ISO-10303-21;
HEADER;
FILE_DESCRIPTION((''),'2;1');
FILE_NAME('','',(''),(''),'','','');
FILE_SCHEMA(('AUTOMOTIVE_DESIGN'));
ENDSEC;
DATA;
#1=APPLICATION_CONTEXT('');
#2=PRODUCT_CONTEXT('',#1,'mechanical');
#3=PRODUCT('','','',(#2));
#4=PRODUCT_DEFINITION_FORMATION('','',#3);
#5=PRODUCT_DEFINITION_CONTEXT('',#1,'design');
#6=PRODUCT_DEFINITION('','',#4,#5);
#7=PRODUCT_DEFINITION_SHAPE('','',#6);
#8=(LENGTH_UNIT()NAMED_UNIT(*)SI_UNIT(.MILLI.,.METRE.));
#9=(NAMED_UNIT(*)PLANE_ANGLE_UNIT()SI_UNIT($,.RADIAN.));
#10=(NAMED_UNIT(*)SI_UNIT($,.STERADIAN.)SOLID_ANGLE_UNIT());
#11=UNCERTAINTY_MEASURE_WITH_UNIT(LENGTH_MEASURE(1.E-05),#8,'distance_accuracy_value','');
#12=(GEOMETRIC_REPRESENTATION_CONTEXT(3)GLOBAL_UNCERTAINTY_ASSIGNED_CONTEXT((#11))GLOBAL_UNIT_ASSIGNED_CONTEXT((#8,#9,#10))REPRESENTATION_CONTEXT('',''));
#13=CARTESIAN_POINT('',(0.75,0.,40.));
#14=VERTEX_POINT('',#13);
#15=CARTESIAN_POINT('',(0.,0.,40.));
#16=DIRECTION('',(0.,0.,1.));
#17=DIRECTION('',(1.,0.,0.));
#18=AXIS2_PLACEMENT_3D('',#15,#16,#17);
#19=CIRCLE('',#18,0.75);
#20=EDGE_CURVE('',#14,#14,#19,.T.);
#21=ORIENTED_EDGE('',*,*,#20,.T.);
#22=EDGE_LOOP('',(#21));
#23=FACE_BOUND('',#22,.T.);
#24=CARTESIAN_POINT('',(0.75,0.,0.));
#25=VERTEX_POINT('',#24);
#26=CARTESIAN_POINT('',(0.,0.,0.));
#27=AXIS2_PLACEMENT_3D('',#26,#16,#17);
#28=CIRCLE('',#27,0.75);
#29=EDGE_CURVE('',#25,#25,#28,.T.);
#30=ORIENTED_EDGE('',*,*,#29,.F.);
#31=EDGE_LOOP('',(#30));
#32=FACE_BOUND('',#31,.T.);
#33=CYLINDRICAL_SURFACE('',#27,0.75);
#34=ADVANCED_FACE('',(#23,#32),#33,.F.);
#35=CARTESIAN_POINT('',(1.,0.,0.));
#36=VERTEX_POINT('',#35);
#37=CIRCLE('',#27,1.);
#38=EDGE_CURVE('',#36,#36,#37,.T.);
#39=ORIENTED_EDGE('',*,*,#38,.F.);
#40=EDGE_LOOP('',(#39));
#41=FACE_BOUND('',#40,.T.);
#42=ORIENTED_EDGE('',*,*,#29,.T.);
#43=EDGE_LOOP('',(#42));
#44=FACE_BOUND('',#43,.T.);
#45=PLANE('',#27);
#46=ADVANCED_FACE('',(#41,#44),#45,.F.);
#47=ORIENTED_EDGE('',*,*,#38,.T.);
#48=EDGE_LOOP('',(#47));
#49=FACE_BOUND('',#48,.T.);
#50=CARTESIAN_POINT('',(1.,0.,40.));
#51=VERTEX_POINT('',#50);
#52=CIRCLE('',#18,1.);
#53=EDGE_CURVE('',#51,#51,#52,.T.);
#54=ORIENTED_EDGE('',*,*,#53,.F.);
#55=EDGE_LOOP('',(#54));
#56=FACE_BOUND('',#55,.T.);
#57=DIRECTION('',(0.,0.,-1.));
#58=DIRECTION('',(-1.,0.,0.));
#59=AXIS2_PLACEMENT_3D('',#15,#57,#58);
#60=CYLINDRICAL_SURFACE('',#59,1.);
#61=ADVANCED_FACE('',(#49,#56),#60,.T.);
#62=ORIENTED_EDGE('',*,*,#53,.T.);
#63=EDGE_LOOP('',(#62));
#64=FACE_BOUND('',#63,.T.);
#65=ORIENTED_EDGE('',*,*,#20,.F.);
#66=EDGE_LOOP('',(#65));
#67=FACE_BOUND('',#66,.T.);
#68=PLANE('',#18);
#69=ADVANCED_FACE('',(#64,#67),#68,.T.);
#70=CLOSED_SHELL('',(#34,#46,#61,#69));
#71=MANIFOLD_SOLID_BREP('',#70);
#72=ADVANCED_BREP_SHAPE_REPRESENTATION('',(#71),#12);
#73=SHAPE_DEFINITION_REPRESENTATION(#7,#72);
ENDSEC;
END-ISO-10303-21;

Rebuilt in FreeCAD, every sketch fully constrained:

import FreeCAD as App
import Part
import Sketcher
Q = App.Units.Quantity

doc = App.newDocument("Part")
params = doc.addObject("Spreadsheet::Sheet", "Params")
for row, (alias, value) in enumerate([
    ("sketch1_diameter", "2 mm"),
    ("pad1_length", "40 mm"),
    ("sketch2_diameter", "1.5 mm"),
    ("pocket1_length", "40 mm"),
], start=1):
    params.set(f"A{row}", alias)
    params.set(f"B{row}", "=" + value)
    params.setAlias(f"B{row}", alias)

body = doc.addObject("PartDesign::Body", "Body")

sketch1 = body.newObject("Sketcher::SketchObject", "Sketch")
sketch1.AttachmentSupport = (doc.getObject("XY_Plane"), [""])
sketch1.MapMode = "FlatFace"
sketch1.addGeometry(Part.Circle(App.Vector(0, 0, 0), App.Vector(0, 0, 1), 1), False)
sketch1.addConstraint(Sketcher.Constraint("Coincident", 0, 3, -1, 1))
sketch1.addConstraint(Sketcher.Constraint("Diameter", 0, Q("2 mm")))
sketch1.setExpression("Constraints[1]", "Params.sketch1_diameter")
pad1 = body.newObject("PartDesign::Pad", "Pad")
pad1.Profile = sketch1
pad1.setExpression("Length", "Params.pad1_length")

sketch2 = body.newObject("Sketcher::SketchObject", "Sketch001")
sketch2.AttachmentSupport = (doc.getObject("XY_Plane"), [""])
sketch2.MapMode = "FlatFace"
sketch2.AttachmentOffset = App.Placement(App.Vector(0, 0, 40), App.Rotation())
sketch2.addGeometry(Part.Circle(App.Vector(0, 0, 0), App.Vector(0, 0, 1), 0.75), False)
sketch2.addConstraint(Sketcher.Constraint("Coincident", 0, 3, -1, 1))
sketch2.addConstraint(Sketcher.Constraint("Diameter", 0, Q("1.5 mm")))
sketch2.setExpression("Constraints[1]", "Params.sketch2_diameter")
pocket1 = body.newObject("PartDesign::Pocket", "Pocket")
pocket1.Profile = sketch2
pocket1.setExpression("Length", "Params.pocket1_length")

doc.recompute()
